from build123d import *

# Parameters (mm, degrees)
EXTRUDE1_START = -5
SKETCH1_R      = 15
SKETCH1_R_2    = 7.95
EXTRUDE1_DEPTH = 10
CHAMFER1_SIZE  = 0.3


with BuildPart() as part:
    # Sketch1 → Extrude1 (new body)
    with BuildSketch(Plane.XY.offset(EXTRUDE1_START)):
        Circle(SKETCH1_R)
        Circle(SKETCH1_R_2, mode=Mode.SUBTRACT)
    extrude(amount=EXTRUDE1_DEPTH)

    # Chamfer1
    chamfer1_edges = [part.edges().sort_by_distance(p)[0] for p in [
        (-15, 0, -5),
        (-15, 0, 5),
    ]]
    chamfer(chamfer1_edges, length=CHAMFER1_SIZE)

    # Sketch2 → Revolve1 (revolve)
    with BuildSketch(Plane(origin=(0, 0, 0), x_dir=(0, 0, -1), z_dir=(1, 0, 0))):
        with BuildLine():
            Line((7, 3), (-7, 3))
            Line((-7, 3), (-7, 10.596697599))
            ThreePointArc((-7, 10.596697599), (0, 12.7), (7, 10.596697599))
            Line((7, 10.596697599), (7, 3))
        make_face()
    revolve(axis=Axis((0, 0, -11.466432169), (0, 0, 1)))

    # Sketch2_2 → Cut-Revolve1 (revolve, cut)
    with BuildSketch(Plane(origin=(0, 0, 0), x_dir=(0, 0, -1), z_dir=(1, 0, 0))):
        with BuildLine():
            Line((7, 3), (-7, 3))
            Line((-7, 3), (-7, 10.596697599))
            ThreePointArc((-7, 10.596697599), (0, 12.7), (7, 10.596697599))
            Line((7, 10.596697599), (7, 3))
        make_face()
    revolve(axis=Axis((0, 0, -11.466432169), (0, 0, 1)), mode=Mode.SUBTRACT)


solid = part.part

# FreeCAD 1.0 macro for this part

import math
import FreeCAD as App
import Part
import Sketcher
from FreeCAD import Vector
Q = App.Units.Quantity


def edges_at(feature, points):
    """Names of the edges that pass closest to the given points."""
    edges = feature.Shape.Edges
    near = lambda p: min(range(len(edges)), key=lambda i: edges[i].distToShape(Part.Vertex(*p))[0])
    return sorted({f"Edge{near(p) + 1}" for p in points})

doc = App.newDocument("Part")
body = doc.addObject("PartDesign::Body", "Body")

# Sketch on XY plane
sketch1 = doc.addObject("Sketcher::SketchObject", "Sketch")
body.addObject(sketch1)
sketch1.AttachmentSupport = (doc.XY_Plane, [""])
sketch1.MapMode = "FlatFace"
sketch1.AttachmentOffset = App.Placement(Vector(0, 0, -5), App.Rotation())
sketch1.addGeometry([
    Part.Circle(Vector(0, 0, 0), Vector(0, 0, 1), 15),
    Part.Circle(Vector(0, 0, 0), Vector(0, 0, 1), 7.95),
], False)
sketch1.addConstraint([
    Sketcher.Constraint("Coincident", 0, 3, -1, 1),
    Sketcher.Constraint("Coincident", 1, 3, -1, 1),
    Sketcher.Constraint("Diameter", 0, Q("30 mm")),
    Sketcher.Constraint("Diameter", 1, Q("15.9 mm")),
])
pad1 = doc.addObject("PartDesign::Pad", "Pad")
body.addObject(pad1)
pad1.Profile = sketch1
pad1.Length = 10
doc.recompute()

chamfer = doc.addObject("PartDesign::Chamfer", "Chamfer")
body.addObject(chamfer)
chamfer.Base = (pad1, edges_at(pad1, [(-15, 0, -5), (-15, 0, 5)]))
chamfer.Size = 0.3

# Sketch on YZ plane
sketch2 = doc.addObject("Sketcher::SketchObject", "Sketch001")
body.addObject(sketch2)
sketch2.AttachmentSupport = (doc.YZ_Plane, [""])
sketch2.MapMode = "FlatFace"
sketch2.addGeometry([
    Part.LineSegment(Vector(3, 7, 0), Vector(3, -7, 0)),
    Part.LineSegment(Vector(3, -7, 0), Vector(10.596698, -7, 0)),
    Part.ArcOfCircle(Part.Circle(Vector(0, 0, 0), Vector(0, 0, 1), 12.7), math.radians(-33.448079), math.radians(33.448079)),
    Part.LineSegment(Vector(10.596698, 7, 0), Vector(3, 7, 0)),
], False)
sketch2.addConstraint([
    Sketcher.Constraint("Coincident", 0, 2, 1, 1),
    Sketcher.Constraint("Coincident", 1, 2, 2, 1),
    Sketcher.Constraint("Coincident", 2, 2, 3, 1),
    Sketcher.Constraint("Coincident", 3, 2, 0, 1),
    Sketcher.Constraint("Vertical", 0),
    Sketcher.Constraint("Horizontal", 1),
    Sketcher.Constraint("Horizontal", 3),
    Sketcher.Constraint("Coincident", 2, 3, -1, 1),
    Sketcher.Constraint("Vertical", 1, 2, 2, 2),
    Sketcher.Constraint("Radius", 2, Q("12.7 mm")),
    Sketcher.Constraint("DistanceY", 0, 2, 0, 1, Q("14 mm")),
    Sketcher.Constraint("DistanceX", -1, 1, 0, 2, Q("3 mm")),
])
revolution = doc.addObject("PartDesign::Revolution", "Revolution")
body.addObject(revolution)
revolution.Profile = sketch2
revolution.ReferenceAxis = (sketch2, ["V_Axis"])
revolution.Angle = 360

# Sketch on YZ plane
sketch3 = doc.addObject("Sketcher::SketchObject", "Sketch002")
body.addObject(sketch3)
sketch3.AttachmentSupport = (doc.YZ_Plane, [""])
sketch3.MapMode = "FlatFace"
sketch3.addGeometry([
    Part.LineSegment(Vector(3, 7, 0), Vector(3, -7, 0)),
    Part.LineSegment(Vector(3, -7, 0), Vector(10.596698, -7, 0)),
    Part.ArcOfCircle(Part.Circle(Vector(0, 0, 0), Vector(0, 0, 1), 12.7), math.radians(-33.448079), math.radians(33.448079)),
    Part.LineSegment(Vector(10.596698, 7, 0), Vector(3, 7, 0)),
], False)
sketch3.addConstraint([
    Sketcher.Constraint("Coincident", 0, 2, 1, 1),
    Sketcher.Constraint("Coincident", 1, 2, 2, 1),
    Sketcher.Constraint("Coincident", 2, 2, 3, 1),
    Sketcher.Constraint("Coincident", 3, 2, 0, 1),
    Sketcher.Constraint("Vertical", 0),
    Sketcher.Constraint("Horizontal", 1),
    Sketcher.Constraint("Horizontal", 3),
    Sketcher.Constraint("Coincident", 2, 3, -1, 1),
    Sketcher.Constraint("Vertical", 1, 2, 2, 2),
    Sketcher.Constraint("Radius", 2, Q("12.7 mm")),
    Sketcher.Constraint("DistanceY", 0, 2, 0, 1, Q("14 mm")),
    Sketcher.Constraint("DistanceX", -1, 1, 0, 2, Q("3 mm")),
])
groove = doc.addObject("PartDesign::Groove", "Groove")
body.addObject(groove)
groove.Profile = sketch3
groove.ReferenceAxis = (sketch3, ["V_Axis"])
groove.Angle = 360

doc.recompute()
